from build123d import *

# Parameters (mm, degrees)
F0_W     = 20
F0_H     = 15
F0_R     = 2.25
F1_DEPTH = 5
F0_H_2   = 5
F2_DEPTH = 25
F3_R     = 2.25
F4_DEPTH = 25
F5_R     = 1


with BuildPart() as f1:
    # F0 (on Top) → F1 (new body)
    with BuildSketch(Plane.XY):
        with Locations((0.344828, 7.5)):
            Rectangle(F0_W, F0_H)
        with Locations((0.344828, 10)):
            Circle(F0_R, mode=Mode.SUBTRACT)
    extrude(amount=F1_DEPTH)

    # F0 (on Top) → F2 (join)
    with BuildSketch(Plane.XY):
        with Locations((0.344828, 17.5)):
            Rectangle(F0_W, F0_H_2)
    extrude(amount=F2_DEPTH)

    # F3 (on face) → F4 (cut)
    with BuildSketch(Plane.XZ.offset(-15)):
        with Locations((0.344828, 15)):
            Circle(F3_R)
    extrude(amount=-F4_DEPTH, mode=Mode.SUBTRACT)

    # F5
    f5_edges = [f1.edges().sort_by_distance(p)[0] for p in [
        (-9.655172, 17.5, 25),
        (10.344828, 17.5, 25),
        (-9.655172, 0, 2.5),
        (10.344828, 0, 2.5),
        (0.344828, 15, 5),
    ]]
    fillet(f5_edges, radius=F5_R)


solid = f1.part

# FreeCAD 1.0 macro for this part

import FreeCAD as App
import Part
import Sketcher

V = App.Vector


def edges_at(feature, points):
    """Names of the edges that pass closest to the given points."""
    edges = feature.Shape.Edges
    near = lambda p: min(range(len(edges)), key=lambda i: edges[i].distToShape(Part.Vertex(*p))[0])
    return sorted({f"Edge{near(p) + 1}" for p in points})

doc = App.newDocument("Part")
params = doc.addObject("Spreadsheet::Sheet", "Params")
for row, (alias, value) in enumerate([
    ("sketch1_diameter", "4.5 mm"),
    ("sketch1_width", "20 mm"),
    ("sketch1_height", "15 mm"),
    ("pad1_length", "5 mm"),
    ("sketch2_width", "20 mm"),
    ("sketch2_height", "5 mm"),
    ("pad2_length", "25 mm"),
    ("sketch3_diameter", "4.5 mm"),
    ("pocket1_length", "25 mm"),
    ("fillet_radius", "1 mm"),
], start=1):
    params.set(f"A{row}", alias)
    params.set(f"B{row}", "=" + value)
    params.setAlias(f"B{row}", alias)

body = doc.addObject("PartDesign::Body", "Body")

# Sketch on XY plane
sketch1 = body.newObject("Sketcher::SketchObject", "Sketch")
sketch1.AttachmentSupport = (doc.getObject("XY_Plane"), [""])
sketch1.MapMode = "FlatFace"
sketch1.addGeometry([
    Part.LineSegment(V(-9.7, 15, 0), V(-9.7, 0, 0)),  # 0
    Part.LineSegment(V(-9.7, 0, 0), V(10.3, 0, 0)),  # 1
    Part.LineSegment(V(10.3, 0, 0), V(10.3, 15, 0)),  # 2
    Part.LineSegment(V(10.3, 15, 0), V(-9.7, 15, 0)),  # 3
    Part.Circle(V(0.3, 10, 0), V(0, 0, 1), 2.2),  # 4
], False)
sketch1.addConstraint([
    Sketcher.Constraint("Coincident", 0, 2, 1, 1),
    Sketcher.Constraint("Coincident", 1, 2, 2, 1),
    Sketcher.Constraint("Coincident", 2, 2, 3, 1),
    Sketcher.Constraint("Coincident", 3, 2, 0, 1),
    Sketcher.Constraint("Vertical", 0),
    Sketcher.Constraint("Horizontal", 1),
    Sketcher.Constraint("Vertical", 2),
    Sketcher.Constraint("Horizontal", 3),
    Sketcher.Constraint("PointOnObject", 0, 2, -1),
    Sketcher.Constraint("Diameter", 4, 4.5),
    Sketcher.Constraint("DistanceX", 1, 1, 1, 2, 20.0),
    Sketcher.Constraint("DistanceY", 0, 2, 0, 1, 15.0),
    Sketcher.Constraint("DistanceY", -1, 1, 4, 3, 10.0),
    Sketcher.Constraint("DistanceX", 0, 2, 4, 3, 10.0),
    Sketcher.Constraint("DistanceX", -1, 1, 4, 3, 0.344828),
])
sketch1.setExpression("Constraints[9]", "Params.sketch1_diameter")
sketch1.setExpression("Constraints[10]", "Params.sketch1_width")
sketch1.setExpression("Constraints[11]", "Params.sketch1_height")
pad1 = body.newObject("PartDesign::Pad", "Pad")
pad1.Profile = sketch1
pad1.setExpression("Length", "Params.pad1_length")

# Sketch on XY plane
sketch2 = body.newObject("Sketcher::SketchObject", "Sketch001")
sketch2.AttachmentSupport = (doc.getObject("XY_Plane"), [""])
sketch2.MapMode = "FlatFace"
sketch2.addGeometry([
    Part.LineSegment(V(-10, 20, 0), V(-10, 15, 0)),
    Part.LineSegment(V(-10, 15, 0), V(10, 15, 0)),
    Part.LineSegment(V(10, 15, 0), V(10, 20, 0)),
    Part.LineSegment(V(10, 20, 0), V(-10, 20, 0)),
], False)
sketch2.addConstraint([
    Sketcher.Constraint("Coincident", 0, 2, 1, 1),
    Sketcher.Constraint("Coincident", 1, 2, 2, 1),
    Sketcher.Constraint("Coincident", 2, 2, 3, 1),
    Sketcher.Constraint("Coincident", 3, 2, 0, 1),
    Sketcher.Constraint("Vertical", 0),
    Sketcher.Constraint("Horizontal", 1),
    Sketcher.Constraint("Vertical", 2),
    Sketcher.Constraint("Horizontal", 3),
    Sketcher.Constraint("DistanceX", 1, 1, 1, 2, 20.0),
    Sketcher.Constraint("DistanceY", 0, 2, 0, 1, 5.0),
    Sketcher.Constraint("DistanceY", -1, 1, 0, 2, 15.0),
    Sketcher.Constraint("DistanceX", 0, 2, -1, 1, 9.655172),
])
sketch2.setExpression("Constraints[8]", "Params.sketch2_width")
sketch2.setExpression("Constraints[9]", "Params.sketch2_height")
pad2 = body.newObject("PartDesign::Pad", "Pad001")
pad2.Profile = sketch2
pad2.setExpression("Length", "Params.pad2_length")

# Sketch on XZ plane
sketch3 = body.newObject("Sketcher::SketchObject", "Sketch002")
sketch3.AttachmentSupport = (doc.getObject("XZ_Plane"), [""])
sketch3.MapMode = "FlatFace"
sketch3.AttachmentOffset = App.Placement(V(0, 0, -15), App.Rotation())
sketch3.addGeometry(Part.Circle(V(0.3, 15, 0), V(0, 0, 1), 2.2), False)
sketch3.addConstraint([
    Sketcher.Constraint("Diameter", 0, 4.5),
    Sketcher.Constraint("DistanceY", -1, 1, 0, 3, 15.0),
    Sketcher.Constraint("DistanceX", -1, 1, 0, 3, 0.344828),
])
sketch3.setExpression("Constraints[0]", "Params.sketch3_diameter")
pocket1 = body.newObject("PartDesign::Pocket", "Pocket")
pocket1.Profile = sketch3
pocket1.setExpression("Length", "Params.pocket1_length")
doc.recompute()

fillet = body.newObject("PartDesign::Fillet", "Fillet")
fillet.Base = (pocket1, edges_at(pocket1, [
    (-9.655, 17.5, 25),
    (10.345, 17.5, 25),
    (-9.655, 0, 2.5),
    (10.345, 0, 2.5),
    (0.345, 15, 5),
]))
fillet.setExpression("Radius", "Params.fillet_radius")

doc.recompute()
